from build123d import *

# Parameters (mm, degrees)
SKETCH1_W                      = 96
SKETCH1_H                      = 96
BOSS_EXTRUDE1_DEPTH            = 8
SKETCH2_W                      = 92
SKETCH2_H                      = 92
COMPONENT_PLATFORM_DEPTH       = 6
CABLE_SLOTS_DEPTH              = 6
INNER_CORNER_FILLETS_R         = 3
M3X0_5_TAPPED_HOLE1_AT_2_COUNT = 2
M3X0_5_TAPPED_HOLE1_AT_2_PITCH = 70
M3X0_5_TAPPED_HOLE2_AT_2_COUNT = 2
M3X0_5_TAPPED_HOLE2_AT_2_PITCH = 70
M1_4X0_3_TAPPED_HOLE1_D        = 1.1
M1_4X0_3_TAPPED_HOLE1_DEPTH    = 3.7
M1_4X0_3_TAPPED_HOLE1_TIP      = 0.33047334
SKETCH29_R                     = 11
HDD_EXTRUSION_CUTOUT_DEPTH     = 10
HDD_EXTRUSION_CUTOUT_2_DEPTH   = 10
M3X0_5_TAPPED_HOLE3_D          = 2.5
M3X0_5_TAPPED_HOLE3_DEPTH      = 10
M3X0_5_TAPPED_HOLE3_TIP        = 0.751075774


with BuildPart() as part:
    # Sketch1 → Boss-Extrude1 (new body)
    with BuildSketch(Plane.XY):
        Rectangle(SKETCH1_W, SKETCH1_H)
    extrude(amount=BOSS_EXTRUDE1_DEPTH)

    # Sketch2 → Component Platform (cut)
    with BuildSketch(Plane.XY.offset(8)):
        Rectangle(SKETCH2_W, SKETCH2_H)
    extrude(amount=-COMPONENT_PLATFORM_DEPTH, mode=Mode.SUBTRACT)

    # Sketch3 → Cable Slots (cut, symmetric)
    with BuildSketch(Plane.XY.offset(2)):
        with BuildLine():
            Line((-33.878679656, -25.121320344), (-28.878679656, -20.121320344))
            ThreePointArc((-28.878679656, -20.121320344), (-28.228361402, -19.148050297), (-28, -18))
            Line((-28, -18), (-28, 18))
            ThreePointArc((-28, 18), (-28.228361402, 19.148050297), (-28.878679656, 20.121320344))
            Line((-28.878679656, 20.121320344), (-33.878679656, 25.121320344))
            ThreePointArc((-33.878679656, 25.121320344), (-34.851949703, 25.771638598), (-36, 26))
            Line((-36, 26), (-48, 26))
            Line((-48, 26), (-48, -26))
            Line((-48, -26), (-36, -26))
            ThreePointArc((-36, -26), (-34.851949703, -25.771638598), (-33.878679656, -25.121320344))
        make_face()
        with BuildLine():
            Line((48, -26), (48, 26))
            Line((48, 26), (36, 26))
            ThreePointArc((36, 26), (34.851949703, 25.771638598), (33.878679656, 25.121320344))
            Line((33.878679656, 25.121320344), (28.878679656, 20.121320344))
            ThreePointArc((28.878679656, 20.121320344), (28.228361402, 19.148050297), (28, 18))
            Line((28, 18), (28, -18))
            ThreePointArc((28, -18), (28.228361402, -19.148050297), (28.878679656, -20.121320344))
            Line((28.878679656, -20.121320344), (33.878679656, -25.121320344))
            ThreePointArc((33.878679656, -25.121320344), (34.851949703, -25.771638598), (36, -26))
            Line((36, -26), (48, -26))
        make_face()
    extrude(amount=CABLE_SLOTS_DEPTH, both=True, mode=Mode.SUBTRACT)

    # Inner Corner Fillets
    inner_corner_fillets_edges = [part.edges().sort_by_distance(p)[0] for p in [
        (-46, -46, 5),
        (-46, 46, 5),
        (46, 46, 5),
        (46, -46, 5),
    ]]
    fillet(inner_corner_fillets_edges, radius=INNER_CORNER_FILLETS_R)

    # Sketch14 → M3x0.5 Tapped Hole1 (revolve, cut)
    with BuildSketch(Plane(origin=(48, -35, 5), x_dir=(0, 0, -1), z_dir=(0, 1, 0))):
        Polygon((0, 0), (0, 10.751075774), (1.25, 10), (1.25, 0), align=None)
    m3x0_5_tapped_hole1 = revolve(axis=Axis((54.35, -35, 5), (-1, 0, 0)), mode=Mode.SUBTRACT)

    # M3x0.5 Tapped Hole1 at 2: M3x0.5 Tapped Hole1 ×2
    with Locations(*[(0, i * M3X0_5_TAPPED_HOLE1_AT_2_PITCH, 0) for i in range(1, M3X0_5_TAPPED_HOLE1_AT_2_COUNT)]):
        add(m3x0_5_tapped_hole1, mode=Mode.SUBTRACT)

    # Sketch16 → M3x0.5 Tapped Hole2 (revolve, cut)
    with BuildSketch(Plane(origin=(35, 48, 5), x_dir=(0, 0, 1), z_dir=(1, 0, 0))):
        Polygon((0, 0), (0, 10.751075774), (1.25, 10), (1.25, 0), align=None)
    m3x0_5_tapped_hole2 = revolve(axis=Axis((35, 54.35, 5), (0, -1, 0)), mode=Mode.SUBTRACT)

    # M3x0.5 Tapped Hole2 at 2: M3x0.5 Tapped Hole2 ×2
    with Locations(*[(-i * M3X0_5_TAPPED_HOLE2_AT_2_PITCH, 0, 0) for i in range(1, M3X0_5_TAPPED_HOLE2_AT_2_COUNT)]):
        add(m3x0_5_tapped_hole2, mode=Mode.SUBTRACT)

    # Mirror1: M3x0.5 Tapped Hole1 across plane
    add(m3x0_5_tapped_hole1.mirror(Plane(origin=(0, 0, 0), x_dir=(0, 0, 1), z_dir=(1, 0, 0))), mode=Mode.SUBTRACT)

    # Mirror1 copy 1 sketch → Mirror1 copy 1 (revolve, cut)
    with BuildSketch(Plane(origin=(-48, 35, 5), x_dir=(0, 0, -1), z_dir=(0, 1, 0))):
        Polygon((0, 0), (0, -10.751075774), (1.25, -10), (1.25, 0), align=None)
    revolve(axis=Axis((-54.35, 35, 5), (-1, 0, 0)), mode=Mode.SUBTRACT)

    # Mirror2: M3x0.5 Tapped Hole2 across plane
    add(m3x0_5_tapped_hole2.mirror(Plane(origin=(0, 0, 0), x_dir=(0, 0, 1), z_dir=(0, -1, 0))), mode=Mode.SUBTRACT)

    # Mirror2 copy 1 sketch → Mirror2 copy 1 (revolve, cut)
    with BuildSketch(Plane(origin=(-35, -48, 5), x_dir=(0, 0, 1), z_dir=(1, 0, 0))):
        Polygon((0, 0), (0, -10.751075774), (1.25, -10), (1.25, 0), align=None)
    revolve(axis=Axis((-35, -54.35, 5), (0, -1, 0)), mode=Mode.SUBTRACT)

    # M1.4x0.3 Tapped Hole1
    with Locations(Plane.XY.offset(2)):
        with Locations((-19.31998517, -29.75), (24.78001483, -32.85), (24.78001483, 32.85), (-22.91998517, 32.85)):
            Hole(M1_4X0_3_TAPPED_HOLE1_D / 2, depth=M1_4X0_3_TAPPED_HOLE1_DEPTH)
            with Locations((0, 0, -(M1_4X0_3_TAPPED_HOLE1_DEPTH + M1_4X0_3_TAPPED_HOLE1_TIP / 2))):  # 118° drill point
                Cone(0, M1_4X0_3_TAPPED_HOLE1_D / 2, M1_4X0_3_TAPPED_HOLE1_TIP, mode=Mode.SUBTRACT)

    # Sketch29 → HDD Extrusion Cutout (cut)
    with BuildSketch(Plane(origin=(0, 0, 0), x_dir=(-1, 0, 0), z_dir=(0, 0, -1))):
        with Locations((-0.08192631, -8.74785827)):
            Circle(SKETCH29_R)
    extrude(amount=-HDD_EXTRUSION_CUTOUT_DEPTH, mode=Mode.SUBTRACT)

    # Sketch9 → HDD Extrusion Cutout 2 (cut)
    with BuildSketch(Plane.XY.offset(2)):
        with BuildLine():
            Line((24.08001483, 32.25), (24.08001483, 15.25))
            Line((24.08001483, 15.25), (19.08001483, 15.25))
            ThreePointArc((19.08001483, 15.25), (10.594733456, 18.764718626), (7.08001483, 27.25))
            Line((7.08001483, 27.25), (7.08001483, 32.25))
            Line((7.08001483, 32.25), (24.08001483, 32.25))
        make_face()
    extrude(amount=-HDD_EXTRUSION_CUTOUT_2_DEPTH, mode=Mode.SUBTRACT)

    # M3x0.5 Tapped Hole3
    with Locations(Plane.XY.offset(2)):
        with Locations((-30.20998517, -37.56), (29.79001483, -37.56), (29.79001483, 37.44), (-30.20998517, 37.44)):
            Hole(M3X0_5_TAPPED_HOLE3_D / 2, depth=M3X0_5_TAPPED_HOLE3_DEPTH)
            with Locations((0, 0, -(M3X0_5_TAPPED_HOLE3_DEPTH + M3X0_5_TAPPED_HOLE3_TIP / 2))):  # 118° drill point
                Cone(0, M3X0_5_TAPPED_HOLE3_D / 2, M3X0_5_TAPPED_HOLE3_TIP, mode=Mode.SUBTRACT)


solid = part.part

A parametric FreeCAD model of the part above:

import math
import FreeCAD as App
import Part
import Sketcher

V = App.Vector
Q = App.Units.Quantity


def edges_at(feature, points):
    """Names of the edges that pass closest to the given points."""
    edges = feature.Shape.Edges
    near = lambda p: min(range(len(edges)), key=lambda i: edges[i].distToShape(Part.Vertex(*p))[0])
    return sorted({f"Edge{near(p) + 1}" for p in points})

doc = App.newDocument("Part")
body = doc.addObject("PartDesign::Body", "Body")

# Sketch on XY plane
sketch1 = body.newObject("Sketcher::SketchObject", "Sketch")
sketch1.AttachmentSupport = (doc.getObject("XY_Plane"), [""])
sketch1.MapMode = "FlatFace"
sketch1.addGeometry([
    Part.LineSegment(V(-48, 48, 0), V(-48, -48, 0)),
    Part.LineSegment(V(-48, -48, 0), V(48, -48, 0)),
    Part.LineSegment(V(48, -48, 0), V(48, 48, 0)),
    Part.LineSegment(V(48, 48, 0), V(-48, 48, 0)),
], False)
sketch1.addConstraint([
    Sketcher.Constraint("Coincident", 0, 2, 1, 1),
    Sketcher.Constraint("Coincident", 1, 2, 2, 1),
    Sketcher.Constraint("Coincident", 2, 2, 3, 1),
    Sketcher.Constraint("Coincident", 3, 2, 0, 1),
    Sketcher.Constraint("Vertical", 0),
    Sketcher.Constraint("Horizontal", 1),
    Sketcher.Constraint("Vertical", 2),
    Sketcher.Constraint("Horizontal", 3),
    Sketcher.Constraint("Symmetric", 0, 2, 2, 2, -1, 1),
    Sketcher.Constraint("Equal", 3, 0),
    Sketcher.Constraint("DistanceX", 1, 1, 1, 2, 96.0),
])
pad1 = body.newObject("PartDesign::Pad", "Pad")
pad1.Profile = sketch1
pad1.Length = 8

# Sketch on XY plane
sketch2 = body.newObject("Sketcher::SketchObject", "Sketch001")
sketch2.AttachmentSupport = (doc.getObject("XY_Plane"), [""])
sketch2.MapMode = "FlatFace"
sketch2.AttachmentOffset = App.Placement(V(0, 0, 8), App.Rotation())
sketch2.addGeometry([
    Part.LineSegment(V(-46, 46, 0), V(-46, -46, 0)),
    Part.LineSegment(V(-46, -46, 0), V(46, -46, 0)),
    Part.LineSegment(V(46, -46, 0), V(46, 46, 0)),
    Part.LineSegment(V(46, 46, 0), V(-46, 46, 0)),
], False)
sketch2.addConstraint([
    Sketcher.Constraint("Coincident", 0, 2, 1, 1),
    Sketcher.Constraint("Coincident", 1, 2, 2, 1),
    Sketcher.Constraint("Coincident", 2, 2, 3, 1),
    Sketcher.Constraint("Coincident", 3, 2, 0, 1),
    Sketcher.Constraint("Vertical", 0),
    Sketcher.Constraint("Horizontal", 1),
    Sketcher.Constraint("Vertical", 2),
    Sketcher.Constraint("Horizontal", 3),
    Sketcher.Constraint("Symmetric", 0, 2, 2, 2, -1, 1),
    Sketcher.Constraint("Equal", 3, 0),
    Sketcher.Constraint("DistanceX", 1, 1, 1, 2, 92.0),
])
pocket1 = body.newObject("PartDesign::Pocket", "Pocket")
pocket1.Profile = sketch2
pocket1.Length = 6

# Sketch on XY plane
sketch3 = body.newObject("Sketcher::SketchObject", "Sketch002")
sketch3.AttachmentSupport = (doc.getObject("XY_Plane"), [""])
sketch3.MapMode = "FlatFace"
sketch3.AttachmentOffset = App.Placement(V(0, 0, 2), App.Rotation())
sketch3.addGeometry([
    Part.LineSegment(V(-33.9, -25.1, 0), V(-28.9, -20.1, 0)),  # 0
    Part.ArcOfCircle(Part.Circle(V(-31, -18, 0), V(0, 0, 1), 3), math.radians(-45), math.radians(0)),  # 1
    Part.LineSegment(V(-28, -18, 0), V(-28, 18, 0)),  # 2
    Part.ArcOfCircle(Part.Circle(V(-31, 18, 0), V(0, 0, 1), 3), math.radians(0), math.radians(45)),  # 3
    Part.LineSegment(V(-28.9, 20.1, 0), V(-33.9, 25.1, 0)),  # 4
    Part.ArcOfCircle(Part.Circle(V(-36, 23, 0), V(0, 0, 1), 3), math.radians(45), math.radians(90)),  # 5
    Part.LineSegment(V(-36, 26, 0), V(-48, 26, 0)),  # 6
    Part.LineSegment(V(-48, 26, 0), V(-48, -26, 0)),  # 7
    Part.LineSegment(V(-48, -26, 0), V(-36, -26, 0)),  # 8
    Part.ArcOfCircle(Part.Circle(V(-36, -23, 0), V(0, 0, 1), 3), math.radians(-90), math.radians(-45)),  # 9
    Part.LineSegment(V(48, -26, 0), V(48, 26, 0)),  # 10
    Part.LineSegment(V(48, 26, 0), V(36, 26, 0)),  # 11
    Part.ArcOfCircle(Part.Circle(V(36, 23, 0), V(0, 0, 1), 3), math.radians(90), math.radians(135)),  # 12
    Part.LineSegment(V(33.9, 25.1, 0), V(28.9, 20.1, 0)),  # 13
    Part.ArcOfCircle(Part.Circle(V(31, 18, 0), V(0, 0, 1), 3), math.radians(135), math.radians(180)),  # 14
    Part.LineSegment(V(28, 18, 0), V(28, -18, 0)),  # 15
    Part.ArcOfCircle(Part.Circle(V(31, -18, 0), V(0, 0, 1), 3), math.radians(180), math.radians(225)),  # 16
    Part.LineSegment(V(28.9, -20.1, 0), V(33.9, -25.1, 0)),  # 17
    Part.ArcOfCircle(Part.Circle(V(36, -23, 0), V(0, 0, 1), 3), math.radians(-135), math.radians(-90)),  # 18
    Part.LineSegment(V(36, -26, 0), V(48, -26, 0)),  # 19
], False)
sketch3.addConstraint([
    Sketcher.Constraint("Tangent", 0, 2, 1, 1),
    Sketcher.Constraint("Tangent", 1, 2, 2, 1),
    Sketcher.Constraint("Tangent", 2, 2, 3, 1),
    Sketcher.Constraint("Tangent", 3, 2, 4, 1),
    Sketcher.Constraint("Tangent", 4, 2, 5, 1),
    Sketcher.Constraint("Tangent", 5, 2, 6, 1),
    Sketcher.Constraint("Coincident", 6, 2, 7, 1),
    Sketcher.Constraint("Coincident", 7, 2, 8, 1),
    Sketcher.Constraint("Tangent", 8, 2, 9, 1),
    Sketcher.Constraint("Tangent", 9, 2, 0, 1),
    Sketcher.Constraint("Coincident", 10, 2, 11, 1),
    Sketcher.Constraint("Tangent", 11, 2, 12, 1),
    Sketcher.Constraint("Tangent", 12, 2, 13, 1),
    Sketcher.Constraint("Tangent", 13, 2, 14, 1),
    Sketcher.Constraint("Tangent", 14, 2, 15, 1),
    Sketcher.Constraint("Tangent", 15, 2, 16, 1),
    Sketcher.Constraint("Tangent", 16, 2, 17, 1),
    Sketcher.Constraint("Tangent", 17, 2, 18, 1),
    Sketcher.Constraint("Tangent", 18, 2, 19, 1),
    Sketcher.Constraint("Coincident", 19, 2, 10, 1),
    Sketcher.Constraint("Vertical", 2),
    Sketcher.Constraint("Horizontal", 6),
    Sketcher.Constraint("Vertical", 7),
    Sketcher.Constraint("Horizontal", 8),
    Sketcher.Constraint("Vertical", 10),
    Sketcher.Constraint("Horizontal", 11),
    Sketcher.Constraint("Vertical", 15),
    Sketcher.Constraint("Horizontal", 19),
    Sketcher.Constraint("Equal", 1, 3),
    Sketcher.Constraint("Equal", 3, 5),
    Sketcher.Constraint("Equal", 5, 9),
    Sketcher.Constraint("Equal", 9, 12),
    Sketcher.Constraint("Equal", 12, 14),
    Sketcher.Constraint("Equal", 14, 16),
    Sketcher.Constraint("Equal", 16, 18),
    Sketcher.Constraint("Symmetric", 9, 3, 12, 3, -1, 1),
    Sketcher.Constraint("Symmetric", 1, 3, 14, 3, -1, 1),
    Sketcher.Constraint("Symmetric", 5, 3, 18, 3, -1, 1),
    Sketcher.Constraint("Symmetric", 5, 3, 12, 3, -2),
    Sketcher.Constraint("Perpendicular", 0, 4),
    Sketcher.Constraint("Perpendicular", 13, 17),
    Sketcher.Constraint("Horizontal", 3, 3, 14, 3),
    Sketcher.Constraint("Equal", 8, 11),
    Sketcher.Constraint("Radius", 1, 3.0),
    Sketcher.Constraint("DistanceX", 6, 2, 6, 1, 12.0),
    Sketcher.Constraint("DistanceY", 2, 1, 2, 2, 36.0),
    Sketcher.Constraint("DistanceY", 7, 2, 7, 1, 52.0),
    Sketcher.Constraint("DistanceX", 1, 3, -1, 1, 31.0),
])
pocket2 = body.newObject("PartDesign::Pocket", "Pocket001")
pocket2.Profile = sketch3
pocket2.Length = 12
pocket2.Midplane = True
doc.recompute()

fillet = body.newObject("PartDesign::Fillet", "Fillet")
fillet.Base = (pocket2, edges_at(pocket2, [
    (-46, -46, 5),
    (-46, 46, 5),
    (46, 46, 5),
    (46, -46, 5),
]))
fillet.Radius = 3

# Sketch on XZ plane
sketch4 = body.newObject("Sketcher::SketchObject", "Sketch003")
sketch4.AttachmentSupport = (doc.getObject("XZ_Plane"), [""])
sketch4.MapMode = "FlatFace"
sketch4.AttachmentOffset = App.Placement(V(0, 0, 35), App.Rotation())
sketch4.addGeometry([
    Part.LineSegment(V(37.2, 5, 0), V(48, 5, 0)),
    Part.LineSegment(V(48, 5, 0), V(48, 3.8, 0)),
    Part.LineSegment(V(48, 3.8, 0), V(38, 3.8, 0)),
    Part.LineSegment(V(38, 3.8, 0), V(37.2, 5, 0)),
], False)
sketch4.addGeometry(Part.LineSegment(V(48, 5, 0), V(37.2, 5, 0)), True)  # axis
sketch4.addConstraint([
    Sketcher.Constraint("Coincident", 0, 2, 1, 1),
    Sketcher.Constraint("Coincident", 1, 2, 2, 1),
    Sketcher.Constraint("Coincident", 2, 2, 3, 1),
    Sketcher.Constraint("Coincident", 3, 2, 0, 1),
    Sketcher.Constraint("Horizontal", 0),
    Sketcher.Constraint("Vertical", 1),
    Sketcher.Constraint("Horizontal", 2),
    Sketcher.Constraint("Horizontal", 4),
    Sketcher.Constraint("Coincident", 4, 1, 0, 2),
    Sketcher.Constraint("Equal", 0, 4),
    Sketcher.Constraint("DistanceX", 2, 2, 2, 1, 10.0),
    Sketcher.Constraint("Angle", 3, Q("121 deg")),
    Sketcher.Constraint("DistanceX", -1, 1, 0, 2, 48.0),
    Sketcher.Constraint("DistanceY", -1, 1, 0, 2, 5.0),
    Sketcher.Constraint("DistanceY", 1, 2, 1, 1, 1.25),
])
groove = body.newObject("PartDesign::Groove", "Groove")
groove.Profile = sketch4
groove.ReferenceAxis = (sketch4, ["Axis0"])
groove.Angle = 360
doc.recompute()

linearpattern = body.newObject("PartDesign::LinearPattern", "LinearPattern")
linearpattern.Originals = [groove]
linearpattern.Direction = (doc.getObject("Y_Axis"), [""])
linearpattern.Mode = "offset"
linearpattern.Offset = 70
linearpattern.Occurrences = 2
body.Tip = linearpattern

# Sketch on YZ plane
sketch5 = body.newObject("Sketcher::SketchObject", "Sketch004")
sketch5.AttachmentSupport = (doc.getObject("YZ_Plane"), [""])
sketch5.MapMode = "FlatFace"
sketch5.AttachmentOffset = App.Placement(V(0, 0, 35), App.Rotation())
sketch5.addGeometry([
    Part.LineSegment(V(37.2, 5, 0), V(48, 5, 0)),
    Part.LineSegment(V(48, 5, 0), V(48, 6.2, 0)),
    Part.LineSegment(V(48, 6.2, 0), V(38, 6.2, 0)),
    Part.LineSegment(V(38, 6.2, 0), V(37.2, 5, 0)),
], False)
sketch5.addGeometry(Part.LineSegment(V(48, 5, 0), V(37.2, 5, 0)), True)  # axis
sketch5.addConstraint([
    Sketcher.Constraint("Coincident", 0, 2, 1, 1),
    Sketcher.Constraint("Coincident", 1, 2, 2, 1),
    Sketcher.Constraint("Coincident", 2, 2, 3, 1),
    Sketcher.Constraint("Coincident", 3, 2, 0, 1),
    Sketcher.Constraint("Horizontal", 0),
    Sketcher.Constraint("Vertical", 1),
    Sketcher.Constraint("Horizontal", 2),
    Sketcher.Constraint("Horizontal", 4),
    Sketcher.Constraint("Coincident", 4, 1, 0, 2),
    Sketcher.Constraint("Equal", 0, 4),
    Sketcher.Constraint("DistanceX", 2, 2, 2, 1, 10.0),
    Sketcher.Constraint("Angle", 3, Q("-121 deg")),
    Sketcher.Constraint("DistanceX", -1, 1, 0, 2, 48.0),
    Sketcher.Constraint("DistanceY", -1, 1, 0, 2, 5.0),
    Sketcher.Constraint("DistanceY", 1, 1, 1, 2, 1.25),
])
groove2 = body.newObject("PartDesign::Groove", "Groove001")
groove2.Profile = sketch5
groove2.ReferenceAxis = (sketch5, ["Axis0"])
groove2.Angle = 360
doc.recompute()

linearpattern2 = body.newObject("PartDesign::LinearPattern", "LinearPattern001")
linearpattern2.Originals = [groove2]
linearpattern2.Direction = (doc.getObject("X_Axis"), [""])
linearpattern2.Mode = "offset"
linearpattern2.Offset = 70
linearpattern2.Occurrences = 2
linearpattern2.Reversed = True
body.Tip = linearpattern2
doc.recompute()

mirrored = body.newObject("PartDesign::Mirrored", "Mirrored")
mirrored.Originals = [groove]
mirrored.MirrorPlane = (doc.getObject("YZ_Plane"), [""])
body.Tip = mirrored

# Sketch on XZ plane
sketch6 = body.newObject("Sketcher::SketchObject", "Sketch005")
sketch6.AttachmentSupport = (doc.getObject("XZ_Plane"), [""])
sketch6.MapMode = "FlatFace"
sketch6.AttachmentOffset = App.Placement(V(0, 0, -35), App.Rotation())
sketch6.addGeometry([
    Part.LineSegment(V(-48, 5, 0), V(-37.2, 5, 0)),
    Part.LineSegment(V(-37.2, 5, 0), V(-38, 3.8, 0)),
    Part.LineSegment(V(-38, 3.8, 0), V(-48, 3.8, 0)),
    Part.LineSegment(V(-48, 3.8, 0), V(-48, 5, 0)),
], False)
sketch6.addGeometry(Part.LineSegment(V(-37.2, 5, 0), V(-48, 5, 0)), True)  # axis
sketch6.addConstraint([
    Sketcher.Constraint("Coincident", 0, 2, 1, 1),
    Sketcher.Constraint("Coincident", 1, 2, 2, 1),
    Sketcher.Constraint("Coincident", 2, 2, 3, 1),
    Sketcher.Constraint("Coincident", 3, 2, 0, 1),
    Sketcher.Constraint("Horizontal", 0),
    Sketcher.Constraint("Horizontal", 2),
    Sketcher.Constraint("Vertical", 3),
    Sketcher.Constraint("Horizontal", 4),
    Sketcher.Constraint("Coincident", 4, 1, 0, 2),
    Sketcher.Constraint("Vertical", 2, 2, 4, 2),
    Sketcher.Constraint("DistanceX", 2, 2, 2, 1, 10.0),
    Sketcher.Constraint("Angle", 1, Q("-121 deg")),
    Sketcher.Constraint("DistanceY", -1, 1, 0, 2, 5.0),
    Sketcher.Constraint("DistanceX", 1, 2, -1, 1, 38.0),
    Sketcher.Constraint("DistanceY", 3, 1, 3, 2, 1.25),
])
groove3 = body.newObject("PartDesign::Groove", "Groove002")
groove3.Profile = sketch6
groove3.ReferenceAxis = (sketch6, ["Axis0"])
groove3.Angle = 360
doc.recompute()

mirrored2 = body.newObject("PartDesign::Mirrored", "Mirrored001")
mirrored2.Originals = [groove2]
mirrored2.MirrorPlane = (doc.getObject("XZ_Plane"), [""])
body.Tip = mirrored2

# Sketch on YZ plane
sketch7 = body.newObject("Sketcher::SketchObject", "Sketch006")
sketch7.AttachmentSupport = (doc.getObject("YZ_Plane"), [""])
sketch7.MapMode = "FlatFace"
sketch7.AttachmentOffset = App.Placement(V(0, 0, -35), App.Rotation())
sketch7.addGeometry([
    Part.LineSegment(V(-48, 5, 0), V(-37.2, 5, 0)),
    Part.LineSegment(V(-37.2, 5, 0), V(-38, 6.2, 0)),
    Part.LineSegment(V(-38, 6.2, 0), V(-48, 6.2, 0)),
    Part.LineSegment(V(-48, 6.2, 0), V(-48, 5, 0)),
], False)
sketch7.addGeometry(Part.LineSegment(V(-37.2, 5, 0), V(-48, 5, 0)), True)  # axis
sketch7.addConstraint([
    Sketcher.Constraint("Coincident", 0, 2, 1, 1),
    Sketcher.Constraint("Coincident", 1, 2, 2, 1),
    Sketcher.Constraint("Coincident", 2, 2, 3, 1),
    Sketcher.Constraint("Coincident", 3, 2, 0, 1),
    Sketcher.Constraint("Horizontal", 0),
    Sketcher.Constraint("Horizontal", 2),
    Sketcher.Constraint("Vertical", 3),
    Sketcher.Constraint("Horizontal", 4),
    Sketcher.Constraint("Coincident", 4, 1, 0, 2),
    Sketcher.Constraint("Vertical", 2, 2, 4, 2),
    Sketcher.Constraint("DistanceX", 2, 2, 2, 1, 10.0),
    Sketcher.Constraint("Angle", 1, Q("121 deg")),
    Sketcher.Constraint("DistanceY", -1, 1, 0, 2, 5.0),
    Sketcher.Constraint("DistanceX", 1, 2, -1, 1, 38.0),
    Sketcher.Constraint("DistanceY", 3, 2, 3, 1, 1.25),
])
groove4 = body.newObject("PartDesign::Groove", "Groove003")
groove4.Profile = sketch7
groove4.ReferenceAxis = (sketch7, ["Axis0"])
groove4.Angle = 360

# Sketch on XY plane
sketch8 = body.newObject("Sketcher::SketchObject", "Sketch007")
sketch8.AttachmentSupport = (doc.getObject("XY_Plane"), [""])
sketch8.MapMode = "FlatFace"
sketch8.AttachmentOffset = App.Placement(V(0, 0, 2), App.Rotation())
sketch8.addGeometry([
    Part.Circle(V(-19.3, -29.8, 0), V(0, 0, 1), 0.6),
    Part.Circle(V(24.8, -32.9, 0), V(0, 0, 1), 0.6),
    Part.Circle(V(24.8, 32.9, 0), V(0, 0, 1), 0.6),
    Part.Circle(V(-22.9, 32.9, 0), V(0, 0, 1), 0.6),
], False)
sketch8.addConstraint([
    Sketcher.Constraint("Equal", 0, 1),
    Sketcher.Constraint("Equal", 1, 2),
    Sketcher.Constraint("Equal", 2, 3),
    Sketcher.Constraint("Symmetric", 1, 3, 2, 3, -1),
    Sketcher.Constraint("Horizontal", 2, 3, 3, 3),
    Sketcher.Constraint("Diameter", 0, 1.1),
    Sketcher.Constraint("DistanceX", 0, 3, 1, 3, 44.1),
    Sketcher.Constraint("DistanceY", 1, 3, 0, 3, 3.1),
    Sketcher.Constraint("DistanceY", 1, 3, 2, 3, 65.7),
    Sketcher.Constraint("DistanceX", 3, 3, 2, 3, 47.7),
    Sketcher.Constraint("DistanceX", 0, 3, -1, 1, 19.319985),
])
doc.recompute()
hole = body.newObject("PartDesign::Hole", "Hole")
hole.Profile = sketch8
hole.ThreadType = "None"
hole.Diameter = 1.1
hole.DepthType = "Dimension"
hole.Depth = 3.7
hole.DrillPoint = "Angled"
hole.DrillPointAngle = 118

# Sketch on XY plane
sketch9 = body.newObject("Sketcher::SketchObject", "Sketch008")
sketch9.AttachmentSupport = (doc.getObject("XY_Plane"), [""])
sketch9.MapMode = "FlatFace"
sketch9.addGeometry(Part.Circle(V(0, -9, 0), V(0, 0, 1), 11), False)
sketch9.addConstraint([
    Sketcher.Constraint("Diameter", 0, 22.0),
    Sketcher.Constraint("DistanceY", 0, 3, -1, 1, 8.747858),
    Sketcher.Constraint("DistanceX", -1, 1, 0, 3, 0.081926),
])
pocket3 = body.newObject("PartDesign::Pocket", "Pocket002")
pocket3.Profile = sketch9
pocket3.Length = 10
pocket3.Reversed = True

# Sketch on XY plane
sketch10 = body.newObject("Sketcher::SketchObject", "Sketch009")
sketch10.AttachmentSupport = (doc.getObject("XY_Plane"), [""])
sketch10.MapMode = "FlatFace"
sketch10.AttachmentOffset = App.Placement(V(0, 0, 2), App.Rotation())
sketch10.addGeometry([
    Part.LineSegment(V(24, 15, 0), V(24, 32, 0)),  # 0
    Part.LineSegment(V(24, 32, 0), V(7, 32, 0)),  # 1
    Part.LineSegment(V(7, 32, 0), V(7, 27, 0)),  # 2
    Part.ArcOfCircle(Part.Circle(V(19, 27, 0), V(0, 0, 1), 12), math.radians(-180), math.radians(-90)),  # 3
    Part.LineSegment(V(19, 15, 0), V(24, 15, 0)),  # 4
], False)
sketch10.addConstraint([
    Sketcher.Constraint("Coincident", 0, 2, 1, 1),
    Sketcher.Constraint("Coincident", 1, 2, 2, 1),
    Sketcher.Constraint("Tangent", 2, 2, 3, 1),
    Sketcher.Constraint("Tangent", 3, 2, 4, 1),
    Sketcher.Constraint("Coincident", 4, 2, 0, 1),
    Sketcher.Constraint("Vertical", 0),
    Sketcher.Constraint("Horizontal", 1),
    Sketcher.Constraint("Vertical", 2),
    Sketcher.Constraint("Horizontal", 4),
    Sketcher.Constraint("Equal", 1, 0),
    Sketcher.Constraint("Radius", 3, 12.0),
    Sketcher.Constraint("DistanceX", 1, 2, 1, 1, 17.0),
    Sketcher.Constraint("DistanceY", -1, 1, 3, 3, 27.25),
    Sketcher.Constraint("DistanceX", -1, 1, 3, 3, 19.080015),
])
pocket4 = body.newObject("PartDesign::Pocket", "Pocket003")
pocket4.Profile = sketch10
pocket4.Length = 10

# Sketch on XY plane
sketch11 = body.newObject("Sketcher::SketchObject", "Sketch010")
sketch11.AttachmentSupport = (doc.getObject("XY_Plane"), [""])
sketch11.MapMode = "FlatFace"
sketch11.AttachmentOffset = App.Placement(V(0, 0, 2), App.Rotation())
sketch11.addGeometry([
    Part.Circle(V(-30.2, -37.6, 0), V(0, 0, 1), 1.2),
    Part.Circle(V(29.8, -37.6, 0), V(0, 0, 1), 1.2),
    Part.Circle(V(29.8, 37.4, 0), V(0, 0, 1), 1.2),
    Part.Circle(V(-30.2, 37.4, 0), V(0, 0, 1), 1.2),
], False)
sketch11.addConstraint([
    Sketcher.Constraint("Equal", 0, 1),
    Sketcher.Constraint("Equal", 1, 2),
    Sketcher.Constraint("Equal", 2, 3),
    Sketcher.Constraint("Horizontal", 0, 3, 1, 3),
    Sketcher.Constraint("Horizontal", 2, 3, 3, 3),
    Sketcher.Constraint("Vertical", 1, 3, 2, 3),
    Sketcher.Constraint("Vertical", 0, 3, 3, 3),
    Sketcher.Constraint("Diameter", 0, 2.5),
    Sketcher.Constraint("DistanceX", 0, 3, 1, 3, 60.0),
    Sketcher.Constraint("DistanceY", 1, 3, 2, 3, 75.0),
    Sketcher.Constraint("DistanceY", 0, 3, -1, 1, 37.56),
    Sketcher.Constraint("DistanceX", 0, 3, -1, 1, 30.209985),
])
doc.recompute()
hole2 = body.newObject("PartDesign::Hole", "Hole001")
hole2.Profile = sketch11
hole2.ThreadType = "None"
hole2.Diameter = 2.5
hole2.DepthType = "Dimension"
hole2.Depth = 10
hole2.DrillPoint = "Angled"
hole2.DrillPointAngle = 118

doc.recompute()
